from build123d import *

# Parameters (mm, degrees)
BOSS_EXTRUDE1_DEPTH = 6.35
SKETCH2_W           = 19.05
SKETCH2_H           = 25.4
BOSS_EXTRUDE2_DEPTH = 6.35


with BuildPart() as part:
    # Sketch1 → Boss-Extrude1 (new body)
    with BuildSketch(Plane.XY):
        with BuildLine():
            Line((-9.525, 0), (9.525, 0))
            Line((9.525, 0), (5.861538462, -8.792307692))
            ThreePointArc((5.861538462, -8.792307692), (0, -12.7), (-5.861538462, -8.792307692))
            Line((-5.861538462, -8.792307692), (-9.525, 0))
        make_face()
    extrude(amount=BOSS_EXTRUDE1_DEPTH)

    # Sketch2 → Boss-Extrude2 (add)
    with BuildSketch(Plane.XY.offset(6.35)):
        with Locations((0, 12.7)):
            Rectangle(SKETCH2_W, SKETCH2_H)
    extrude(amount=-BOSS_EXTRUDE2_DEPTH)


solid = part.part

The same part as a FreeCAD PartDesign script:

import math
import FreeCAD as App
import Part
import Sketcher
Q = App.Units.Quantity


def add_polygon(sketch, points):
    """Adds a closed chain of lines whose ends are joined by coincident constraints."""
    first, n = sketch.GeometryCount, len(points)
    for a, b in zip(points, points[1:] + points[:1]):
        sketch.addGeometry(Part.LineSegment(App.Vector(*a, 0), App.Vector(*b, 0)), False)
    for i in range(n):
        sketch.addConstraint(Sketcher.Constraint("Coincident", first + i, 2, first + (i + 1) % n, 1))

doc = App.newDocument("Part")
body = doc.addObject("PartDesign::Body", "Body")

# Sketch on XY plane
sketch1 = body.newObject("Sketcher::SketchObject", "Sketch")
sketch1.AttachmentSupport = (doc.getObject("XY_Plane"), [""])
sketch1.MapMode = "FlatFace"
sketch1.addGeometry(Part.LineSegment(App.Vector(10, 0, 0), App.Vector(-10, 0, 0)), False)
sketch1.addGeometry(Part.LineSegment(App.Vector(-10, 0, 0), App.Vector(-6, -9, 0)), False)
sketch1.addGeometry(Part.ArcOfCircle(Part.Circle(App.Vector(0, -6, 0), App.Vector(0, 0, 1), 6), math.radians(-157), math.radians(-23)), False)
sketch1.addGeometry(Part.LineSegment(App.Vector(6, -9, 0), App.Vector(10, 0, 0)), False)
sketch1.addConstraint(Sketcher.Constraint("Coincident", 0, 2, 1, 1))
sketch1.addConstraint(Sketcher.Constraint("Tangent", 1, 2, 2, 1))
sketch1.addConstraint(Sketcher.Constraint("Tangent", 2, 2, 3, 1))
sketch1.addConstraint(Sketcher.Constraint("Coincident", 3, 2, 0, 1))
sketch1.addConstraint(Sketcher.Constraint("Horizontal", 0))
sketch1.addConstraint(Sketcher.Constraint("Symmetric", 0, 2, 3, 2, -1, 1))
sketch1.addConstraint(Sketcher.Constraint("PointOnObject", 2, 3, -2))
sketch1.addConstraint(Sketcher.Constraint("Radius", 2, Q("0.25 in")))
sketch1.addConstraint(Sketcher.Constraint("DistanceX", 0, 2, 0, 1, Q("0.75 in")))
sketch1.addConstraint(Sketcher.Constraint("DistanceY", 2, 3, -1, 1, Q("0.25 in")))
pad1 = body.newObject("PartDesign::Pad", "Pad")
pad1.Profile = sketch1
pad1.Length = Q("0.25 in")

# Sketch on XY plane
sketch2 = body.newObject("Sketcher::SketchObject", "Sketch001")
sketch2.AttachmentSupport = (doc.getObject("XY_Plane"), [""])
sketch2.MapMode = "FlatFace"
sketch2.AttachmentOffset = App.Placement(App.Vector(0, 0, 0.25 * 25.4), App.Rotation())
add_polygon(sketch2, [(-10, 25), (-10, 0), (10, 0), (10, 25)])  # lines 0-3
sketch2.addConstraint(Sketcher.Constraint("Vertical", 0))
sketch2.addConstraint(Sketcher.Constraint("Horizontal", 1))
sketch2.addConstraint(Sketcher.Constraint("Vertical", 2))
sketch2.addConstraint(Sketcher.Constraint("Horizontal", 3))
sketch2.addConstraint(Sketcher.Constraint("Symmetric", 0, 2, 1, 2, -1, 1))
sketch2.addConstraint(Sketcher.Constraint("DistanceY", 0, 2, 0, 1, Q("1 in")))
sketch2.addConstraint(Sketcher.Constraint("DistanceX", 1, 1, 1, 2, Q("0.75 in")))
pad2 = body.newObject("PartDesign::Pad", "Pad001")
pad2.Profile = sketch2
pad2.Length = Q("0.25 in")
pad2.Reversed = True

doc.recompute()
